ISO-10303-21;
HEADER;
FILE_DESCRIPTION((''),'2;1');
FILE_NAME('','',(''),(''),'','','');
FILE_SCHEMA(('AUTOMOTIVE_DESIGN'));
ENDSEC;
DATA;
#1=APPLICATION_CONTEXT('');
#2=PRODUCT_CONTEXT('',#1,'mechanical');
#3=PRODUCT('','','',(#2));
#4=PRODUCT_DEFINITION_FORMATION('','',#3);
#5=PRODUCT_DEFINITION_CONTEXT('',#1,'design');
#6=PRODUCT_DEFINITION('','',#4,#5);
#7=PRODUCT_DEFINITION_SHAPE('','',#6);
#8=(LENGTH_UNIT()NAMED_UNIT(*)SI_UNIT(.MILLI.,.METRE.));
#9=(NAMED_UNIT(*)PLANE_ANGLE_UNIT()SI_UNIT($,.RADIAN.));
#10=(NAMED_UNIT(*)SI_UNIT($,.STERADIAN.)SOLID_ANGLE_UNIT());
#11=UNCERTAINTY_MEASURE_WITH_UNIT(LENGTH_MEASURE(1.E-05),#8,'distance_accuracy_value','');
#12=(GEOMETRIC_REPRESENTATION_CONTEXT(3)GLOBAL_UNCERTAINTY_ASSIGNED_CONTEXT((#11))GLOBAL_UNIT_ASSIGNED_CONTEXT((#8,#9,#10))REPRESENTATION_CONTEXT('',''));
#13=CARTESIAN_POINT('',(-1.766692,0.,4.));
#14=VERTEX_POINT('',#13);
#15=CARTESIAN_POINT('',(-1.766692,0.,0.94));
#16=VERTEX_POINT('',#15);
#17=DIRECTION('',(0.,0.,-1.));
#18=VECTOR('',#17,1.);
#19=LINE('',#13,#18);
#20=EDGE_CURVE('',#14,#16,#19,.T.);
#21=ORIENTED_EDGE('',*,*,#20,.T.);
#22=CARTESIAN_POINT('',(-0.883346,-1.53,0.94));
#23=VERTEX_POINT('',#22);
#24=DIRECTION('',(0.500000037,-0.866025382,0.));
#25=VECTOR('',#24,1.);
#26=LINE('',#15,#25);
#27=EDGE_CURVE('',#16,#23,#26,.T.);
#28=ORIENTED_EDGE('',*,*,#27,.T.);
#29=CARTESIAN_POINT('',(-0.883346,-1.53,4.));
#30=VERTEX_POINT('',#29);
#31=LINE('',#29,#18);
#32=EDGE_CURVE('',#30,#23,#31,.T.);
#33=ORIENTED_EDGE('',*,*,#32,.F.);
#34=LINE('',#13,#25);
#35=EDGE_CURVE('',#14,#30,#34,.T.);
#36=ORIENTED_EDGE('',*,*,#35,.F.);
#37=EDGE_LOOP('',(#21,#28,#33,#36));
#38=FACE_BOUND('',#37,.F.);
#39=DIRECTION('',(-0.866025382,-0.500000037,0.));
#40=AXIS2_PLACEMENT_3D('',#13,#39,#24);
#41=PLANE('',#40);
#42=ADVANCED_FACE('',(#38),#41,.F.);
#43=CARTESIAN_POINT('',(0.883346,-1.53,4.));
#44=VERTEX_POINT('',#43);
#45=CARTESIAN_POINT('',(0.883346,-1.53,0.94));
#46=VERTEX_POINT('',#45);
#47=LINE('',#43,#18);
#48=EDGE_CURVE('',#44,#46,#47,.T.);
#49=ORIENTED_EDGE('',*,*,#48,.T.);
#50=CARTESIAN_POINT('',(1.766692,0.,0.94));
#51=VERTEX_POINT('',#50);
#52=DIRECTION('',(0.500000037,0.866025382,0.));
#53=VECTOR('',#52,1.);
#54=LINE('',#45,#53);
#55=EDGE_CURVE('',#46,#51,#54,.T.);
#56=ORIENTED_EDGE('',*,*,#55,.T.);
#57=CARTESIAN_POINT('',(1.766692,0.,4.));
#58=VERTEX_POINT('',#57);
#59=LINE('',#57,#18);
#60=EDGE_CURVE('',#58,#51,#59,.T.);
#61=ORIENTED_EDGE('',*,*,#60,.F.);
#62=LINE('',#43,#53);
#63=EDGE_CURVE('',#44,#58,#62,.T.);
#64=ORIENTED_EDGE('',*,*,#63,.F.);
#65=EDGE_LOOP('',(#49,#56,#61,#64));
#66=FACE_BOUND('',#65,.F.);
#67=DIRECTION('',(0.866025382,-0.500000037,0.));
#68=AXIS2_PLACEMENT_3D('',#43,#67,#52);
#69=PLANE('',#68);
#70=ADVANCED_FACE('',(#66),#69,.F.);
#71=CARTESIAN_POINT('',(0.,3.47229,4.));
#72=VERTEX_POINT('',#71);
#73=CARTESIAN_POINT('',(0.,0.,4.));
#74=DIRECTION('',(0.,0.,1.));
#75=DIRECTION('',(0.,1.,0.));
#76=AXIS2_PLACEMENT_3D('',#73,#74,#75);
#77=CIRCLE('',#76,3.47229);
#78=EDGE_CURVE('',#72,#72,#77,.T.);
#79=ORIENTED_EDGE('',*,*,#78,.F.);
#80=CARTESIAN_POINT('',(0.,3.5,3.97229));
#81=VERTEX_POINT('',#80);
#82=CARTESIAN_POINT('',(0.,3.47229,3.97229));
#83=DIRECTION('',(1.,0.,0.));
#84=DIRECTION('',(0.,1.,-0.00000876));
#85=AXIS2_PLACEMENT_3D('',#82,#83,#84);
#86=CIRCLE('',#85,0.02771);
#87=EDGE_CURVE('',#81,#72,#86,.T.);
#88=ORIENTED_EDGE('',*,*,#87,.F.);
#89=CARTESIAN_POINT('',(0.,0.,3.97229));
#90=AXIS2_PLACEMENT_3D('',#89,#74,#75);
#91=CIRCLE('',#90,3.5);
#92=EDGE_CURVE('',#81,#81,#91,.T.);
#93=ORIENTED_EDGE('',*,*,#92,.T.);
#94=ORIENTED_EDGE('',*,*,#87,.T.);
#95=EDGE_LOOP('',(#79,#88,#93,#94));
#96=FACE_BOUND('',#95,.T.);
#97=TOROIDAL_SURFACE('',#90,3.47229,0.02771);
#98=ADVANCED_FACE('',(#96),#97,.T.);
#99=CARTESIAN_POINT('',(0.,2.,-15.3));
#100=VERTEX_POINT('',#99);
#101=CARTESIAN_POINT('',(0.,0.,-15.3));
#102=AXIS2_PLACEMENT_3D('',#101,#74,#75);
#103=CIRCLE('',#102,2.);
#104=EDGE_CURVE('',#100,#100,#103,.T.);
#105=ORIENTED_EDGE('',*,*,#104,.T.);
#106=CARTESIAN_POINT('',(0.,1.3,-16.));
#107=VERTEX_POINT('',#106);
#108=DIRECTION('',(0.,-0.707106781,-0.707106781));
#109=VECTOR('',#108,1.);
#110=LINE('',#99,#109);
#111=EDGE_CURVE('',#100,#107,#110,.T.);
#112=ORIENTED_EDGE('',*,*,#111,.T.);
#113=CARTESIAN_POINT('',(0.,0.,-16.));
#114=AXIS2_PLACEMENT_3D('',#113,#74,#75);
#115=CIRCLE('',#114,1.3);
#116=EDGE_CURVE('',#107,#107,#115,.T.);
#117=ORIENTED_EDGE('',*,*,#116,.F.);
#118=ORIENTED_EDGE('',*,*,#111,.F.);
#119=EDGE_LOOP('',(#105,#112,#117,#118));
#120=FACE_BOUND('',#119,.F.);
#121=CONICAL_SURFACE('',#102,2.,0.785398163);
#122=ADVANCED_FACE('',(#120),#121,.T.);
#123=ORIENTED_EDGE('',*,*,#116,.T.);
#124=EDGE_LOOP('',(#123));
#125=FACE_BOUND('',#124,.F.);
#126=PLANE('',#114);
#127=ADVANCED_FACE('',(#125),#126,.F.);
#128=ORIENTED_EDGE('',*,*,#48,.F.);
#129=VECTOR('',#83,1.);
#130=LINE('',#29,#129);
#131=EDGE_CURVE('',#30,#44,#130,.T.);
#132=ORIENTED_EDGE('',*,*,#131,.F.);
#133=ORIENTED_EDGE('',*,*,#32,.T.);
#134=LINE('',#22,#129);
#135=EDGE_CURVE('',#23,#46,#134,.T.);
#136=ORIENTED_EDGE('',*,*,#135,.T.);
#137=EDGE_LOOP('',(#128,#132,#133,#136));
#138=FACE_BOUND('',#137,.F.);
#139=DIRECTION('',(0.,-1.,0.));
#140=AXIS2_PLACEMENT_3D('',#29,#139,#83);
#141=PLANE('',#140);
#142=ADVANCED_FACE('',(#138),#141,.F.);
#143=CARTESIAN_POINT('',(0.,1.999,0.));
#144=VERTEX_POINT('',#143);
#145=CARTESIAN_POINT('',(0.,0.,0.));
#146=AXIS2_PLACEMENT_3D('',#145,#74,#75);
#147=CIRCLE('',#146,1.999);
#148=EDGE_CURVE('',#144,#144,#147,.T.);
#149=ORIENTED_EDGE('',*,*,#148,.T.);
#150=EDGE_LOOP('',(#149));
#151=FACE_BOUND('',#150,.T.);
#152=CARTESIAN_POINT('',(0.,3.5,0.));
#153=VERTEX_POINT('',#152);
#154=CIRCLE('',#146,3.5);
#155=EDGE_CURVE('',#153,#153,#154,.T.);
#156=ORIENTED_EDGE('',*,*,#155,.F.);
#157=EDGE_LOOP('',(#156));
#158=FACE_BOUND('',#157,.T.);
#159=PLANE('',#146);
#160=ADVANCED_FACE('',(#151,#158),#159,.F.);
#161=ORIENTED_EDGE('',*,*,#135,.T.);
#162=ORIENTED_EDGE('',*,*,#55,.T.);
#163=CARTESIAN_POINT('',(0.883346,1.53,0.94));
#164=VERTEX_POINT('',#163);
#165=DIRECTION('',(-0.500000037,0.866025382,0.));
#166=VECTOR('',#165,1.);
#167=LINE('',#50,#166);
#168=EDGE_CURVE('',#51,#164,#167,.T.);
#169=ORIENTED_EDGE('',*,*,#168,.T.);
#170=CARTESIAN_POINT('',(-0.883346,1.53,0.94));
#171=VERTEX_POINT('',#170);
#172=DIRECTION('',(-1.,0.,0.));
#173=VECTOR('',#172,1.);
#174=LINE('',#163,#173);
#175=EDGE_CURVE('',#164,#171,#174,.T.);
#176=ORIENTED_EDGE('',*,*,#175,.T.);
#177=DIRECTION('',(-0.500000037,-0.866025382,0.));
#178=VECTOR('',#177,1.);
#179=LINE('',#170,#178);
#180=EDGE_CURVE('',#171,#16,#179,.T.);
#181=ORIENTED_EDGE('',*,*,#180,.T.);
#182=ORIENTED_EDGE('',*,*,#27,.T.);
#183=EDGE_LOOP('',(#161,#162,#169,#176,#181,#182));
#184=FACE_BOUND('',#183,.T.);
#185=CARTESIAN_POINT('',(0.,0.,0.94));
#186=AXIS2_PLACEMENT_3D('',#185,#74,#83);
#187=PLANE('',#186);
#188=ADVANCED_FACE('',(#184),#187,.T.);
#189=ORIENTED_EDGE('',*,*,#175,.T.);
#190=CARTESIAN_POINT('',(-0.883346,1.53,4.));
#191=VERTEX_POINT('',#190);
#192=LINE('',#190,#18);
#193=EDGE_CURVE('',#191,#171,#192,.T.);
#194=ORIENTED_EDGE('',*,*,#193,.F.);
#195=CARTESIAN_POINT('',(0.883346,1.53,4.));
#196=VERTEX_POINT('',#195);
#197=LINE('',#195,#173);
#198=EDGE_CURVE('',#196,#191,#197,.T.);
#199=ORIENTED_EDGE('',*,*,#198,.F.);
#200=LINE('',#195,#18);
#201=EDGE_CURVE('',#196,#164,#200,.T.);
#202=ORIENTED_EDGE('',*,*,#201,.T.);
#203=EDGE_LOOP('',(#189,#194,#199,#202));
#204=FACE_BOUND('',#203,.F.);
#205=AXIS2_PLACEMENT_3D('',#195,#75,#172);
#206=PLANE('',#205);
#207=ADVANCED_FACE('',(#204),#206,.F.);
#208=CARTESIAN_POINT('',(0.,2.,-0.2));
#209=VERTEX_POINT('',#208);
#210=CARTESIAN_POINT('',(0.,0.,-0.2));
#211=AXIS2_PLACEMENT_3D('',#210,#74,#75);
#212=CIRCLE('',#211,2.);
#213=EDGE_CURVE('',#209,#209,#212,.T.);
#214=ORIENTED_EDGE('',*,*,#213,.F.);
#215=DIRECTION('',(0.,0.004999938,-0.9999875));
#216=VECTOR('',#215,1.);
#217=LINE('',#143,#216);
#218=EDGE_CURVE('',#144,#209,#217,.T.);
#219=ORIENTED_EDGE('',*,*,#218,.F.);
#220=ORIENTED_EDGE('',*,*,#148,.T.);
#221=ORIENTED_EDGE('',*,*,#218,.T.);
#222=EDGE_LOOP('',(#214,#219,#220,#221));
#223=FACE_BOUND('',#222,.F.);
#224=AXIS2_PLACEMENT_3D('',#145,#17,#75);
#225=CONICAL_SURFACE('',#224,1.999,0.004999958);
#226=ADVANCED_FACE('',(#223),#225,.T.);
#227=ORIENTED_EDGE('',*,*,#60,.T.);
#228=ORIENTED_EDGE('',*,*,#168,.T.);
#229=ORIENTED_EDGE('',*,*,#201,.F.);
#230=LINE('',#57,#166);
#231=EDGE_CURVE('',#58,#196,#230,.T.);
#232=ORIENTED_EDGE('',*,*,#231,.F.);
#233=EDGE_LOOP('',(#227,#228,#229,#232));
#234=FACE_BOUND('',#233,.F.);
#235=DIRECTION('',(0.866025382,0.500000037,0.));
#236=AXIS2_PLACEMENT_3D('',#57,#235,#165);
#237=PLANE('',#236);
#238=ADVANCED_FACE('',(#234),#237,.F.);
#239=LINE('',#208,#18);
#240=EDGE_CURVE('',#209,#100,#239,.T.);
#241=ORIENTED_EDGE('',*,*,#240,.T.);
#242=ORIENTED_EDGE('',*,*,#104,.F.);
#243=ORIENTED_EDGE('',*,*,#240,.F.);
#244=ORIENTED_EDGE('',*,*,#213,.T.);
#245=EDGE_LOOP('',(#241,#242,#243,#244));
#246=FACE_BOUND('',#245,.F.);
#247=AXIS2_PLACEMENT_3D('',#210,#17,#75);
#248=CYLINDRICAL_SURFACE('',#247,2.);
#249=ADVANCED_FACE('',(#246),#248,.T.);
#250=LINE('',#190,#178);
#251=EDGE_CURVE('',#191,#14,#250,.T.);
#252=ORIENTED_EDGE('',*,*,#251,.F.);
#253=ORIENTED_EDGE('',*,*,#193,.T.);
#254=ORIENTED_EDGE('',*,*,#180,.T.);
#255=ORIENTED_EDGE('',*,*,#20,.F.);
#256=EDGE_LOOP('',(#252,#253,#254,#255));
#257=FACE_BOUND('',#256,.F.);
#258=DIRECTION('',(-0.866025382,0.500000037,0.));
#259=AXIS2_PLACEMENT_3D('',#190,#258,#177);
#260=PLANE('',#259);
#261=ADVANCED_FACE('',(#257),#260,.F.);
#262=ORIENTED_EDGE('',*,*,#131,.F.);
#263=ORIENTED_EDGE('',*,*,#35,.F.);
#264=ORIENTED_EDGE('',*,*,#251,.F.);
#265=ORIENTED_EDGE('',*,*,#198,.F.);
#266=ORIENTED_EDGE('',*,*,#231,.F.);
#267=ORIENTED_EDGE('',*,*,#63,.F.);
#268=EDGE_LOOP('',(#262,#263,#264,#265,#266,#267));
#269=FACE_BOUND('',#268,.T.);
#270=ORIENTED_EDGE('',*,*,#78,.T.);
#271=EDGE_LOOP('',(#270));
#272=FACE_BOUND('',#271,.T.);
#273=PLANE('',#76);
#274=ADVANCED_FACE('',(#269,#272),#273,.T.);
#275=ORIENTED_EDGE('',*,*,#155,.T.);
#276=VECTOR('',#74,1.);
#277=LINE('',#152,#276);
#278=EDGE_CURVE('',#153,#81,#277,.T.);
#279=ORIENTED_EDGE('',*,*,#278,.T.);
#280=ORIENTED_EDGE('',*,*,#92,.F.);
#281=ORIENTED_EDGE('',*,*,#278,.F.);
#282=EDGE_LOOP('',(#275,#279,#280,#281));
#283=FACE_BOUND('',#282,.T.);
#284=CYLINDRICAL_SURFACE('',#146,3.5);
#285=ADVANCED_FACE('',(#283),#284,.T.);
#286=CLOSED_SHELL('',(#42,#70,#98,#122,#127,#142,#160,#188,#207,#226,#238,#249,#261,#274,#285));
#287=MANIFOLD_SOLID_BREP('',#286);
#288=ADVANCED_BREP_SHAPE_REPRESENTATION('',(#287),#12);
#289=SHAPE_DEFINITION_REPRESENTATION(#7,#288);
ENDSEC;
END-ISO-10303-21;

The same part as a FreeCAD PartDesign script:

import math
import FreeCAD as App
import Part
import Sketcher
from FreeCAD import Vector
Q = App.Units.Quantity


def add_polygon(sketch, points):
    """Adds a closed chain of lines whose ends are joined by coincident constraints."""
    first, n = sketch.GeometryCount, len(points)
    for a, b in zip(points, points[1:] + points[:1]):
        sketch.addGeometry(Part.LineSegment(App.Vector(*a, 0), App.Vector(*b, 0)), False)
    for i in range(n):
        sketch.addConstraint(Sketcher.Constraint("Coincident", first + i, 2, first + (i + 1) % n, 1))

doc = App.newDocument("Part")
body = doc.addObject("PartDesign::Body", "Body")

sketch1 = body.newObject("Sketcher::SketchObject", "Sketch")
sketch1.AttachmentSupport = (doc.getObject("YZ_Plane"), [""])
sketch1.MapMode = "FlatFace"
sketch1.addGeometry(Part.LineSegment(Vector(1.999, 0, 0), Vector(3.5, 0, 0)), False)
sketch1.addGeometry(Part.LineSegment(Vector(3.5, 0, 0), Vector(3.5, 3.97229, 0)), False)
sketch1.addGeometry(Part.ArcOfCircle(Part.Circle(Vector(3.47229, 3.97229, 0), Vector(0, 0, 1), 0.02771), math.radians(-0.000502), math.radians(90.000502)), False)
sketch1.addGeometry(Part.LineSegment(Vector(3.47229, 4, 0), Vector(0, 4, 0)), False)
sketch1.addGeometry(Part.LineSegment(Vector(0, 4, 0), Vector(0, -16, 0)), False)
sketch1.addGeometry(Part.LineSegment(Vector(0, -16, 0), Vector(1.3, -16, 0)), False)
sketch1.addGeometry(Part.LineSegment(Vector(1.3, -16, 0), Vector(2, -15.3, 0)), False)
sketch1.addGeometry(Part.LineSegment(Vector(2, -15.3, 0), Vector(2, -0.2, 0)), False)
sketch1.addGeometry(Part.LineSegment(Vector(2, -0.2, 0), Vector(1.999, 0, 0)), False)
sketch1.addConstraint(Sketcher.Constraint("Coincident", 0, 2, 1, 1))
sketch1.addConstraint(Sketcher.Constraint("Coincident", 1, 2, 2, 1))
sketch1.addConstraint(Sketcher.Constraint("Coincident", 2, 2, 3, 1))
sketch1.addConstraint(Sketcher.Constraint("Coincident", 3, 2, 4, 1))
sketch1.addConstraint(Sketcher.Constraint("Coincident", 4, 2, 5, 1))
sketch1.addConstraint(Sketcher.Constraint("Coincident", 5, 2, 6, 1))
sketch1.addConstraint(Sketcher.Constraint("Coincident", 6, 2, 7, 1))
sketch1.addConstraint(Sketcher.Constraint("Coincident", 7, 2, 8, 1))
sketch1.addConstraint(Sketcher.Constraint("Coincident", 8, 2, 0, 1))
sketch1.addConstraint(Sketcher.Constraint("Horizontal", 0))
sketch1.addConstraint(Sketcher.Constraint("Vertical", 1))
sketch1.addConstraint(Sketcher.Constraint("Horizontal", 3))
sketch1.addConstraint(Sketcher.Constraint("Vertical", 4))
sketch1.addConstraint(Sketcher.Constraint("Horizontal", 5))
sketch1.addConstraint(Sketcher.Constraint("Vertical", 7))
sketch1.addConstraint(Sketcher.Constraint("PointOnObject", 0, 2, -1))
sketch1.addConstraint(Sketcher.Constraint("PointOnObject", 3, 2, -2))
sketch1.addConstraint(Sketcher.Constraint("Horizontal", 2, 3, 1, 2))
sketch1.addConstraint(Sketcher.Constraint("DistanceY", 4, 2, 4, 1, Q("20 mm")))
sketch1.addConstraint(Sketcher.Constraint("Angle", 6, Q("45 deg")))
sketch1.addConstraint(Sketcher.Constraint("DistanceX", 5, 1, 5, 2, Q("1.3 mm")))
sketch1.addConstraint(Sketcher.Constraint("DistanceY", 7, 1, 7, 2, Q("15.1 mm")))
sketch1.addConstraint(Sketcher.Constraint("DistanceY", -1, 1, 2, 2, Q("4 mm")))
sketch1.addConstraint(Sketcher.Constraint("DistanceX", -1, 1, 6, 2, Q("2 mm")))
sketch1.addConstraint(Sketcher.Constraint("DistanceX", -1, 1, 0, 2, Q("3.5 mm")))
sketch1.addConstraint(Sketcher.Constraint("DistanceX", 0, 1, 0, 2, Q("1.501 mm")))
sketch1.addConstraint(Sketcher.Constraint("Radius", 2, Q("0.02771 mm")))
sketch1.addConstraint(Sketcher.Constraint("DistanceX", 3, 2, 3, 1, Q("3.47229 mm")))
revolution = body.newObject("PartDesign::Revolution", "Revolution")
revolution.Profile = sketch1
revolution.ReferenceAxis = (sketch1, ["V_Axis"])
revolution.Angle = 360

sketch2 = body.newObject("Sketcher::SketchObject", "Sketch001")
sketch2.AttachmentSupport = (doc.getObject("XY_Plane"), [""])
sketch2.MapMode = "FlatFace"
sketch2.AttachmentOffset = App.Placement(Vector(0, 0, 4), App.Rotation())
add_polygon(sketch2, [(1.766692, 0), (0.883346, 1.53), (-0.883346, 1.53), (-1.766692, 0), (-0.883346, -1.53), (0.883346, -1.53)])
sketch2.addConstraint(Sketcher.Constraint("Horizontal", 1))
sketch2.addConstraint(Sketcher.Constraint("Horizontal", 4))
sketch2.addConstraint(Sketcher.Constraint("Symmetric", 0, 2, 3, 2, -1, 1))
sketch2.addConstraint(Sketcher.Constraint("Symmetric", 2, 2, 5, 2, -1, 1))
sketch2.addConstraint(Sketcher.Constraint("PointOnObject", 2, 2, -1))
sketch2.addConstraint(Sketcher.Constraint("Parallel", 2, 5))
sketch2.addConstraint(Sketcher.Constraint("Vertical", 1, 2, 3, 2))
sketch2.addConstraint(Sketcher.Constraint("Angle", 0, Q("120.000002 deg")))
sketch2.addConstraint(Sketcher.Constraint("DistanceY", -1, 1, 0, 2, Q("1.53 mm")))
sketch2.addConstraint(Sketcher.Constraint("DistanceX", 1, 2, 1, 1, Q("1.766692 mm")))
pocket1 = body.newObject("PartDesign::Pocket", "Pocket")
pocket1.Profile = sketch2
pocket1.Length = 3.06

doc.recompute()
